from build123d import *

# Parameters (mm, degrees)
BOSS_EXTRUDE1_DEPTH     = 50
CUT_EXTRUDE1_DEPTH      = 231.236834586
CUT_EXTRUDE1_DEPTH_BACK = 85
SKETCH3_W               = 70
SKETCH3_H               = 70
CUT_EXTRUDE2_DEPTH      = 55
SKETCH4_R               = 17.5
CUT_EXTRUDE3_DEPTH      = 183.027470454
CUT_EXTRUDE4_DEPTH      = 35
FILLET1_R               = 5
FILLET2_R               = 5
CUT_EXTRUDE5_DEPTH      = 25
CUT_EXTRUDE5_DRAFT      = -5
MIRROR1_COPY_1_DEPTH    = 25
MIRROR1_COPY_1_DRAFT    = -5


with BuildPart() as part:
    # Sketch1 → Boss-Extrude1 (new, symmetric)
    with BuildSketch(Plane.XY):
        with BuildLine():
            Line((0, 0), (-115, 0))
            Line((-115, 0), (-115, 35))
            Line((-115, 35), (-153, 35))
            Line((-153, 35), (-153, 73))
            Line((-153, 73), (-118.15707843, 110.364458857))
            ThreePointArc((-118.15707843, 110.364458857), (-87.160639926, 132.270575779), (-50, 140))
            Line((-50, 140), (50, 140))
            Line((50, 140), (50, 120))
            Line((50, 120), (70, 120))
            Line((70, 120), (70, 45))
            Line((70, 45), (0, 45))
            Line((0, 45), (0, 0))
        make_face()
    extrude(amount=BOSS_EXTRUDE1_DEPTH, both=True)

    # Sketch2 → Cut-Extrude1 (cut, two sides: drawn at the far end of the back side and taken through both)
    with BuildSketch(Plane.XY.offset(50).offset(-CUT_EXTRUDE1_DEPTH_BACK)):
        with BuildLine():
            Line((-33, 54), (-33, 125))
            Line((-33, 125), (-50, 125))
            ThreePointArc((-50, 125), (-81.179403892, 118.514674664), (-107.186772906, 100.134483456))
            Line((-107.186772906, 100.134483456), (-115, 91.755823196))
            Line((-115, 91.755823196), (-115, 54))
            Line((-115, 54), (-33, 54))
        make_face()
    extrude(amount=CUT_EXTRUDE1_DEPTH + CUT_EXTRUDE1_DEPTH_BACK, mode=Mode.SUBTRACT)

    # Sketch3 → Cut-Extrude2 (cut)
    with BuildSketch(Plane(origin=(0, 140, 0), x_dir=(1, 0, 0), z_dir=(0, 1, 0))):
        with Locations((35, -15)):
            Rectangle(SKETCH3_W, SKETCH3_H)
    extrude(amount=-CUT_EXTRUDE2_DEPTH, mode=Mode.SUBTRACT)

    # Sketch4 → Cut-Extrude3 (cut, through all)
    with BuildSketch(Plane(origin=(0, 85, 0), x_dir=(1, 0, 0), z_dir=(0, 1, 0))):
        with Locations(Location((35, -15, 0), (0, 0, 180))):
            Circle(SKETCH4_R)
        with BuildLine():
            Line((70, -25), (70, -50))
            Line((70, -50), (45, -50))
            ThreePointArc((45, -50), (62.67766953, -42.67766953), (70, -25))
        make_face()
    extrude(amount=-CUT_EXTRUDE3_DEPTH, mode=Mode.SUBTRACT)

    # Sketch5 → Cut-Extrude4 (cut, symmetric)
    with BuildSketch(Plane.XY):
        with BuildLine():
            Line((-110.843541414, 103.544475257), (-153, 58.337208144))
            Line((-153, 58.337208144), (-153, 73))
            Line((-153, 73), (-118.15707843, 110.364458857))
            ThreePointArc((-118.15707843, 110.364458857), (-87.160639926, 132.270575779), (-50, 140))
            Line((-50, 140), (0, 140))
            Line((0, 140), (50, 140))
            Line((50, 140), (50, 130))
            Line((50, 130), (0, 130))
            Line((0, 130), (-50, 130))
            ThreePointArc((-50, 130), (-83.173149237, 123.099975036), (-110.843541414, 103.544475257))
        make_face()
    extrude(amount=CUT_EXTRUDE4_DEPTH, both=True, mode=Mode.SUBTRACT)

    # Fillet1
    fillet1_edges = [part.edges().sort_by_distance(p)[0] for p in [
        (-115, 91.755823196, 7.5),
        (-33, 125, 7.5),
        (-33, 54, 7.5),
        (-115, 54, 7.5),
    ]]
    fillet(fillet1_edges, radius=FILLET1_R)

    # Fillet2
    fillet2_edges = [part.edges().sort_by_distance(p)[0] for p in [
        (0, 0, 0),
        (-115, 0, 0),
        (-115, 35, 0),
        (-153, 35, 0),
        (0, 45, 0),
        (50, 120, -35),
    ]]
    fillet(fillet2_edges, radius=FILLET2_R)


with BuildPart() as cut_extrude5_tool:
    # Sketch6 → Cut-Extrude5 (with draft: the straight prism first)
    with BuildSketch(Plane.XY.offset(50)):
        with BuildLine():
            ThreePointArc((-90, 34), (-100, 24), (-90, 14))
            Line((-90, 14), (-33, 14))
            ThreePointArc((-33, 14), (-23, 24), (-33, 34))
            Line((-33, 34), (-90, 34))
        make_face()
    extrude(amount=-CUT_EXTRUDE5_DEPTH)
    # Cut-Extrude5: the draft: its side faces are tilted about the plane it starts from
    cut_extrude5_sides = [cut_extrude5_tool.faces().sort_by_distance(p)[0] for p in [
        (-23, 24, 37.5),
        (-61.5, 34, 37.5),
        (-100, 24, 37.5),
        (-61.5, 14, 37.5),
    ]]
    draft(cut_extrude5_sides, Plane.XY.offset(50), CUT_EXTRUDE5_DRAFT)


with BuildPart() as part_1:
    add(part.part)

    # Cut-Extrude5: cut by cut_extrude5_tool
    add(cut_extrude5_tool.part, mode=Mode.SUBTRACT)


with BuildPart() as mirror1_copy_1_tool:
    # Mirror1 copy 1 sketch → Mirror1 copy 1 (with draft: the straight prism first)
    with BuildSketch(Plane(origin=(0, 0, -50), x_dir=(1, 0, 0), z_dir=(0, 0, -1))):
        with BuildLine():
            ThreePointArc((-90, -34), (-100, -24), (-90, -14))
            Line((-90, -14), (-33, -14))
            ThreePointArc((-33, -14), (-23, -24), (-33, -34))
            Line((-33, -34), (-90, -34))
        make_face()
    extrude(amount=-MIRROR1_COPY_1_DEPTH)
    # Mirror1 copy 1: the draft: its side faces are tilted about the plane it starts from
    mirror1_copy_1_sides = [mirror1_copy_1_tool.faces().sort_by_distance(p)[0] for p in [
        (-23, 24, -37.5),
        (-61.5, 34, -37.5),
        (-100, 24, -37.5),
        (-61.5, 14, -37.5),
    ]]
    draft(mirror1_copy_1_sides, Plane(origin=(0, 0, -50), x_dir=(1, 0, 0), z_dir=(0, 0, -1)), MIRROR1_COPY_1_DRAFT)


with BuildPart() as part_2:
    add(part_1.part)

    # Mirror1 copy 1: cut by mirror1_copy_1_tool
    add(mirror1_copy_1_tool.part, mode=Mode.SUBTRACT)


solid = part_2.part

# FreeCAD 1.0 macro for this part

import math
import FreeCAD as App
import Part
import Sketcher
from FreeCAD import Vector
Q = App.Units.Quantity


def edges_at(feature, points):
    """Names of the edges that pass closest to the given points."""
    edges = feature.Shape.Edges
    near = lambda p: min(range(len(edges)), key=lambda i: edges[i].distToShape(Part.Vertex(*p))[0])
    return sorted({f"Edge{near(p) + 1}" for p in points})


def faces_at(feature, points):
    """Names of the faces that lie closest to the given points."""
    faces = feature.Shape.Faces
    near = lambda p: min(range(len(faces)), key=lambda i: faces[i].distToShape(Part.Vertex(*p))[0])
    return sorted({f"Face{near(p) + 1}" for p in points})

doc = App.newDocument("Part")
body = doc.addObject("PartDesign::Body", "Body")

sketch1 = body.newObject("Sketcher::SketchObject", "Sketch")
sketch1.AttachmentSupport = (doc.getObject("XY_Plane"), [""])
sketch1.MapMode = "FlatFace"
sketch1.addGeometry(Part.LineSegment(Vector(-115, 0, 0), Vector(0, 0, 0)), False)
sketch1.addGeometry(Part.LineSegment(Vector(0, 0, 0), Vector(0, 45, 0)), False)
sketch1.addGeometry(Part.LineSegment(Vector(0, 45, 0), Vector(70, 45, 0)), False)
sketch1.addGeometry(Part.LineSegment(Vector(70, 45, 0), Vector(70, 120, 0)), False)
sketch1.addGeometry(Part.LineSegment(Vector(70, 120, 0), Vector(50, 120, 0)), False)
sketch1.addGeometry(Part.LineSegment(Vector(50, 120, 0), Vector(50, 140, 0)), False)
sketch1.addGeometry(Part.LineSegment(Vector(50, 140, 0), Vector(-50, 140, 0)), False)
sketch1.addGeometry(Part.ArcOfCircle(Part.Circle(Vector(-50, 47, 0), Vector(0, 0, 1), 93), math.radians(90), math.radians(137)), False)
sketch1.addGeometry(Part.LineSegment(Vector(-118, 110, 0), Vector(-153, 73, 0)), False)
sketch1.addGeometry(Part.LineSegment(Vector(-153, 73, 0), Vector(-153, 35, 0)), False)
sketch1.addGeometry(Part.LineSegment(Vector(-153, 35, 0), Vector(-115, 35, 0)), False)
sketch1.addGeometry(Part.LineSegment(Vector(-115, 35, 0), Vector(-115, 0, 0)), False)
sketch1.addConstraint(Sketcher.Constraint("Coincident", 0, 2, 1, 1))
sketch1.addConstraint(Sketcher.Constraint("Coincident", 1, 2, 2, 1))
sketch1.addConstraint(Sketcher.Constraint("Coincident", 2, 2, 3, 1))
sketch1.addConstraint(Sketcher.Constraint("Coincident", 3, 2, 4, 1))
sketch1.addConstraint(Sketcher.Constraint("Coincident", 4, 2, 5, 1))
sketch1.addConstraint(Sketcher.Constraint("Coincident", 5, 2, 6, 1))
sketch1.addConstraint(Sketcher.Constraint("Tangent", 6, 2, 7, 1))
sketch1.addConstraint(Sketcher.Constraint("Tangent", 7, 2, 8, 1))
sketch1.addConstraint(Sketcher.Constraint("Coincident", 8, 2, 9, 1))
sketch1.addConstraint(Sketcher.Constraint("Coincident", 9, 2, 10, 1))
sketch1.addConstraint(Sketcher.Constraint("Coincident", 10, 2, 11, 1))
sketch1.addConstraint(Sketcher.Constraint("Coincident", 11, 2, 0, 1))
sketch1.addConstraint(Sketcher.Constraint("Horizontal", 0))
sketch1.addConstraint(Sketcher.Constraint("Vertical", 1))
sketch1.addConstraint(Sketcher.Constraint("Horizontal", 2))
sketch1.addConstraint(Sketcher.Constraint("Vertical", 3))
sketch1.addConstraint(Sketcher.Constraint("Horizontal", 4))
sketch1.addConstraint(Sketcher.Constraint("Vertical", 5))
sketch1.addConstraint(Sketcher.Constraint("Horizontal", 6))
sketch1.addConstraint(Sketcher.Constraint("Vertical", 9))
sketch1.addConstraint(Sketcher.Constraint("Horizontal", 10))
sketch1.addConstraint(Sketcher.Constraint("Vertical", 11))
sketch1.addConstraint(Sketcher.Constraint("Coincident", 0, 2, -1, 1))
sketch1.addConstraint(Sketcher.Constraint("Equal", 4, 5))
sketch1.addConstraint(Sketcher.Constraint("Equal", 10, 9))
sketch1.addConstraint(Sketcher.Constraint("DistanceX", 0, 1, 0, 2, 115.0))
sketch1.addConstraint(Sketcher.Constraint("DistanceX", 2, 1, 2, 2, 70.0))
sketch1.addConstraint(Sketcher.Constraint("DistanceX", 4, 2, 4, 1, 20.0))
sketch1.addConstraint(Sketcher.Constraint("DistanceX", 6, 2, 6, 1, 100.0))
sketch1.addConstraint(Sketcher.Constraint("DistanceX", 10, 1, 10, 2, 38.0))
sketch1.addConstraint(Sketcher.Constraint("DistanceY", 1, 1, 1, 2, 45.0))
sketch1.addConstraint(Sketcher.Constraint("DistanceY", 3, 1, 3, 2, 75.0))
sketch1.addConstraint(Sketcher.Constraint("DistanceY", 11, 2, 11, 1, 35.0))
sketch1.addConstraint(Sketcher.Constraint("Angle", 8, Q("-133 deg")))
pad1 = body.newObject("PartDesign::Pad", "Pad")
pad1.Profile = sketch1
pad1.Length = 100
pad1.Midplane = True

sketch2 = body.newObject("Sketcher::SketchObject", "Sketch001")
sketch2.AttachmentSupport = (doc.getObject("XY_Plane"), [""])
sketch2.MapMode = "FlatFace"
sketch2.AttachmentOffset = App.Placement(Vector(0, 0, 50), App.Rotation())
sketch2.addGeometry(Part.LineSegment(Vector(-33, 54, 0), Vector(-33, 125, 0)), False)
sketch2.addGeometry(Part.LineSegment(Vector(-33, 125, 0), Vector(-50, 125, 0)), False)
sketch2.addGeometry(Part.ArcOfCircle(Part.Circle(Vector(-50, 47, 0), Vector(0, 0, 1), 78), math.radians(90), math.radians(137)), False)
sketch2.addGeometry(Part.LineSegment(Vector(-107, 100, 0), Vector(-115, 92, 0)), False)
sketch2.addGeometry(Part.LineSegment(Vector(-115, 92, 0), Vector(-115, 54, 0)), False)
sketch2.addGeometry(Part.LineSegment(Vector(-115, 54, 0), Vector(-33, 54, 0)), False)
sketch2.addConstraint(Sketcher.Constraint("Coincident", 0, 2, 1, 1))
sketch2.addConstraint(Sketcher.Constraint("Tangent", 1, 2, 2, 1))
sketch2.addConstraint(Sketcher.Constraint("Tangent", 2, 2, 3, 1))
sketch2.addConstraint(Sketcher.Constraint("Coincident", 3, 2, 4, 1))
sketch2.addConstraint(Sketcher.Constraint("Coincident", 4, 2, 5, 1))
sketch2.addConstraint(Sketcher.Constraint("Coincident", 5, 2, 0, 1))
sketch2.addConstraint(Sketcher.Constraint("Vertical", 0))
sketch2.addConstraint(Sketcher.Constraint("Horizontal", 1))
sketch2.addConstraint(Sketcher.Constraint("Vertical", 4))
sketch2.addConstraint(Sketcher.Constraint("Horizontal", 5))
sketch2.addConstraint(Sketcher.Constraint("DistanceX", 1, 2, 1, 1, 17.0))
sketch2.addConstraint(Sketcher.Constraint("DistanceX", 5, 1, 5, 2, 82.0))
sketch2.addConstraint(Sketcher.Constraint("DistanceY", 0, 1, 0, 2, 71.0))
sketch2.addConstraint(Sketcher.Constraint("Angle", 3, Q("-133 deg")))
sketch2.addConstraint(Sketcher.Constraint("DistanceX", 2, 3, -1, 1, 50.0))
sketch2.addConstraint(Sketcher.Constraint("DistanceY", -1, 1, 0, 2, 125.0))
sketch2.addConstraint(Sketcher.Constraint("Radius", 2, 78.193045))
pocket1 = body.newObject("PartDesign::Pocket", "Pocket")
pocket1.Profile = sketch2
pocket1.Type = "TwoLengths"
pocket1.Length = 231.236835
pocket1.Length2 = 85
pocket1.Reversed = True

sketch3 = body.newObject("Sketcher::SketchObject", "Sketch002")
sketch3.AttachmentSupport = (doc.getObject("XZ_Plane"), [""])
sketch3.MapMode = "FlatFace"
sketch3.AttachmentOffset = App.Placement(Vector(0, 0, -140), App.Rotation())
sketch3.addGeometry(Part.LineSegment(Vector(0, -20, 0), Vector(0, 50, 0)), False)
sketch3.addGeometry(Part.LineSegment(Vector(0, 50, 0), Vector(70, 50, 0)), False)
sketch3.addGeometry(Part.LineSegment(Vector(70, 50, 0), Vector(70, -20, 0)), False)
sketch3.addGeometry(Part.LineSegment(Vector(70, -20, 0), Vector(0, -20, 0)), False)
sketch3.addConstraint(Sketcher.Constraint("Coincident", 0, 2, 1, 1))
sketch3.addConstraint(Sketcher.Constraint("Coincident", 1, 2, 2, 1))
sketch3.addConstraint(Sketcher.Constraint("Coincident", 2, 2, 3, 1))
sketch3.addConstraint(Sketcher.Constraint("Coincident", 3, 2, 0, 1))
sketch3.addConstraint(Sketcher.Constraint("Vertical", 0))
sketch3.addConstraint(Sketcher.Constraint("Horizontal", 1))
sketch3.addConstraint(Sketcher.Constraint("Vertical", 2))
sketch3.addConstraint(Sketcher.Constraint("Horizontal", 3))
sketch3.addConstraint(Sketcher.Constraint("PointOnObject", 0, 2, -2))
sketch3.addConstraint(Sketcher.Constraint("Equal", 3, 0))
sketch3.addConstraint(Sketcher.Constraint("DistanceX", 1, 1, 1, 2, 70.0))
sketch3.addConstraint(Sketcher.Constraint("DistanceY", -1, 1, 0, 2, 50.0))
pocket2 = body.newObject("PartDesign::Pocket", "Pocket001")
pocket2.Profile = sketch3
pocket2.Length = 55
pocket2.Reversed = True

sketch4 = body.newObject("Sketcher::SketchObject", "Sketch003")
sketch4.AttachmentSupport = (doc.getObject("XZ_Plane"), [""])
sketch4.MapMode = "FlatFace"
sketch4.AttachmentOffset = App.Placement(Vector(0, 0, -85), App.Rotation())
sketch4.addGeometry(Part.Circle(Vector(35, 15, 0), Vector(0, 0, 1), 18), False)
sketch4.addGeometry(Part.LineSegment(Vector(70, 50, 0), Vector(70, 25, 0)), False)
sketch4.addGeometry(Part.ArcOfCircle(Part.Circle(Vector(45, 25, 0), Vector(0, 0, 1), 25), math.radians(0), math.radians(90)), False)
sketch4.addGeometry(Part.LineSegment(Vector(45, 50, 0), Vector(70, 50, 0)), False)
sketch4.addConstraint(Sketcher.Constraint("Tangent", 1, 2, 2, 1))
sketch4.addConstraint(Sketcher.Constraint("Tangent", 2, 2, 3, 1))
sketch4.addConstraint(Sketcher.Constraint("Coincident", 3, 2, 1, 1))
sketch4.addConstraint(Sketcher.Constraint("Vertical", 1))
sketch4.addConstraint(Sketcher.Constraint("Horizontal", 3))
sketch4.addConstraint(Sketcher.Constraint("Diameter", 0, 35.0))
sketch4.addConstraint(Sketcher.Constraint("Radius", 2, 25.0))
sketch4.addConstraint(Sketcher.Constraint("DistanceX", -1, 1, 0, 3, 35.0))
sketch4.addConstraint(Sketcher.Constraint("DistanceY", -1, 1, 0, 3, 15.0))
sketch4.addConstraint(Sketcher.Constraint("DistanceX", -1, 1, 2, 3, 45.0))
sketch4.addConstraint(Sketcher.Constraint("DistanceY", -1, 1, 2, 3, 25.0))
pocket3 = body.newObject("PartDesign::Pocket", "Pocket002")
pocket3.Profile = sketch4
pocket3.Type = "ThroughAll"
pocket3.Reversed = True

sketch5 = body.newObject("Sketcher::SketchObject", "Sketch004")
sketch5.AttachmentSupport = (doc.getObject("XY_Plane"), [""])
sketch5.MapMode = "FlatFace"
sketch5.addGeometry(Part.LineSegment(Vector(-153, 58, 0), Vector(-111, 104, 0)), False)
sketch5.addGeometry(Part.ArcOfCircle(Part.Circle(Vector(-50, 47, 0), Vector(0, 0, 1), 83), math.radians(90), math.radians(137)), False)
sketch5.addGeometry(Part.LineSegment(Vector(-50, 130, 0), Vector(50, 130, 0)), False)
sketch5.addGeometry(Part.LineSegment(Vector(50, 130, 0), Vector(50, 140, 0)), False)
sketch5.addGeometry(Part.LineSegment(Vector(50, 140, 0), Vector(-50, 140, 0)), False)
sketch5.addGeometry(Part.ArcOfCircle(Part.Circle(Vector(-50, 47, 0), Vector(0, 0, 1), 93), math.radians(90), math.radians(137)), False)
sketch5.addGeometry(Part.LineSegment(Vector(-118, 110, 0), Vector(-153, 73, 0)), False)
sketch5.addGeometry(Part.LineSegment(Vector(-153, 73, 0), Vector(-153, 58, 0)), False)
sketch5.addConstraint(Sketcher.Constraint("Tangent", 0, 2, 1, 2))
sketch5.addConstraint(Sketcher.Constraint("Tangent", 1, 1, 2, 1))
sketch5.addConstraint(Sketcher.Constraint("Coincident", 2, 2, 3, 1))
sketch5.addConstraint(Sketcher.Constraint("Coincident", 3, 2, 4, 1))
sketch5.addConstraint(Sketcher.Constraint("Tangent", 4, 2, 5, 1))
sketch5.addConstraint(Sketcher.Constraint("Tangent", 5, 2, 6, 1))
sketch5.addConstraint(Sketcher.Constraint("Coincident", 6, 2, 7, 1))
sketch5.addConstraint(Sketcher.Constraint("Coincident", 7, 2, 0, 1))
sketch5.addConstraint(Sketcher.Constraint("Horizontal", 2))
sketch5.addConstraint(Sketcher.Constraint("Vertical", 3))
sketch5.addConstraint(Sketcher.Constraint("Horizontal", 4))
sketch5.addConstraint(Sketcher.Constraint("Vertical", 7))
sketch5.addConstraint(Sketcher.Constraint("Coincident", 5, 3, 1, 3))
sketch5.addConstraint(Sketcher.Constraint("Parallel", 0, 6))
sketch5.addConstraint(Sketcher.Constraint("DistanceX", 2, 1, 2, 2, 100.0))
sketch5.addConstraint(Sketcher.Constraint("DistanceY", 3, 1, 3, 2, 10.0))
sketch5.addConstraint(Sketcher.Constraint("Angle", 0, Q("47 deg")))
sketch5.addConstraint(Sketcher.Constraint("DistanceX", 1, 3, -1, 1, 50.0))
sketch5.addConstraint(Sketcher.Constraint("DistanceY", -1, 1, 1, 1, 130.0))
sketch5.addConstraint(Sketcher.Constraint("DistanceX", 6, 2, -1, 1, 153.0))
sketch5.addConstraint(Sketcher.Constraint("DistanceY", -1, 1, 6, 2, 73.0))
pocket4 = body.newObject("PartDesign::Pocket", "Pocket003")
pocket4.Profile = sketch5
pocket4.Length = 70
pocket4.Midplane = True
doc.recompute()

fillet = body.newObject("PartDesign::Fillet", "Fillet")
fillet.Base = (pocket4, edges_at(pocket4, [
    (-115, 91.756, 7.5),
    (-33, 125, 7.5),
    (-33, 54, 7.5),
    (-115, 54, 7.5),
]))
fillet.Radius = 5
doc.recompute()

fillet2 = body.newObject("PartDesign::Fillet", "Fillet001")
fillet2.Base = (fillet, edges_at(fillet, [
    (0, 0, 0),
    (-115, 0, 0),
    (-115, 35, 0),
    (-153, 35, 0),
    (0, 45, 0),
    (50, 120, -35),
]))
fillet2.Radius = 5
body2 = doc.addObject("PartDesign::Body", "Body001")

sketch6 = body2.newObject("Sketcher::SketchObject", "Sketch005")
sketch6.AttachmentSupport = (doc.getObject("XY_Plane001"), [""])
sketch6.MapMode = "FlatFace"
sketch6.AttachmentOffset = App.Placement(Vector(0, 0, 50), App.Rotation())
sketch6.addGeometry(Part.ArcOfCircle(Part.Circle(Vector(-90, 24, 0), Vector(0, 0, 1), 10), math.radians(90), math.radians(270)), False)
sketch6.addGeometry(Part.LineSegment(Vector(-90, 14, 0), Vector(-33, 14, 0)), False)
sketch6.addGeometry(Part.ArcOfCircle(Part.Circle(Vector(-33, 24, 0), Vector(0, 0, 1), 10), math.radians(-90), math.radians(90)), False)
sketch6.addGeometry(Part.LineSegment(Vector(-33, 34, 0), Vector(-90, 34, 0)), False)
sketch6.addConstraint(Sketcher.Constraint("Tangent", 0, 2, 1, 1))
sketch6.addConstraint(Sketcher.Constraint("Tangent", 1, 2, 2, 1))
sketch6.addConstraint(Sketcher.Constraint("Tangent", 2, 2, 3, 1))
sketch6.addConstraint(Sketcher.Constraint("Tangent", 3, 2, 0, 1))
sketch6.addConstraint(Sketcher.Constraint("Horizontal", 1))
sketch6.addConstraint(Sketcher.Constraint("Horizontal", 3))
sketch6.addConstraint(Sketcher.Constraint("Radius", 0, 10.0))
sketch6.addConstraint(Sketcher.Constraint("DistanceX", 1, 1, 1, 2, 57.0))
sketch6.addConstraint(Sketcher.Constraint("DistanceX", 0, 3, -1, 1, 90.0))
sketch6.addConstraint(Sketcher.Constraint("DistanceY", -1, 1, 0, 3, 24.0))
pad2 = body2.newObject("PartDesign::Pad", "Pad001")
pad2.Profile = sketch6
pad2.Length = 25
pad2.Reversed = True
doc.recompute()

datumplane = body2.newObject("PartDesign::Plane", "DatumPlane")
datumplane.AttachmentSupport = (doc.getObject("XY_Plane001"), [""])
datumplane.MapMode = "FlatFace"
datumplane.AttachmentOffset = App.Placement(Vector(0, 0, 50), App.Rotation())
draft = body2.newObject("PartDesign::Draft", "Draft")
draft.Base = (pad2, faces_at(pad2, [
    (-23, 24, 37.5),
    (-61.5, 34, 37.5),
    (-100, 24, 37.5),
    (-61.5, 14, 37.5),
]))
draft.NeutralPlane = (datumplane, [""])
draft.Angle = 5
draft.Reversed = True
doc.recompute()

boolean = body.newObject("PartDesign::Boolean", "Boolean")
boolean.Type = "Cut"
boolean.addObjects([body2])
body3 = doc.addObject("PartDesign::Body", "Body002")

sketch7 = body3.newObject("Sketcher::SketchObject", "Sketch006")
sketch7.AttachmentSupport = (doc.getObject("XY_Plane002"), [""])
sketch7.MapMode = "FlatFace"
sketch7.AttachmentOffset = App.Placement(Vector(0, 0, -50), App.Rotation())
sketch7.addGeometry(Part.ArcOfCircle(Part.Circle(Vector(-90, 24, 0), Vector(0, 0, 1), 10), math.radians(90), math.radians(270)), False)
sketch7.addGeometry(Part.LineSegment(Vector(-90, 34, 0), Vector(-33, 34, 0)), False)
sketch7.addGeometry(Part.ArcOfCircle(Part.Circle(Vector(-33, 24, 0), Vector(0, 0, 1), 10), math.radians(-90), math.radians(90)), False)
sketch7.addGeometry(Part.LineSegment(Vector(-33, 14, 0), Vector(-90, 14, 0)), False)
sketch7.addConstraint(Sketcher.Constraint("Tangent", 0, 1, 1, 1))
sketch7.addConstraint(Sketcher.Constraint("Tangent", 1, 2, 2, 2))
sketch7.addConstraint(Sketcher.Constraint("Tangent", 2, 1, 3, 1))
sketch7.addConstraint(Sketcher.Constraint("Tangent", 3, 2, 0, 2))
sketch7.addConstraint(Sketcher.Constraint("Horizontal", 1))
sketch7.addConstraint(Sketcher.Constraint("Horizontal", 3))
sketch7.addConstraint(Sketcher.Constraint("Radius", 0, 10.0))
sketch7.addConstraint(Sketcher.Constraint("DistanceX", 1, 1, 1, 2, 57.0))
sketch7.addConstraint(Sketcher.Constraint("DistanceX", 0, 3, -1, 1, 90.0))
sketch7.addConstraint(Sketcher.Constraint("DistanceY", -1, 1, 0, 3, 24.0))
pad3 = body3.newObject("PartDesign::Pad", "Pad002")
pad3.Profile = sketch7
pad3.Length = 25
doc.recompute()

datumplane2 = body3.newObject("PartDesign::Plane", "DatumPlane001")
datumplane2.AttachmentSupport = (doc.getObject("XY_Plane002"), [""])
datumplane2.MapMode = "FlatFace"
datumplane2.AttachmentOffset = App.Placement(Vector(0, 0, -50), App.Rotation())
draft2 = body3.newObject("PartDesign::Draft", "Draft001")
draft2.Base = (pad3, faces_at(pad3, [
    (-23, 24, -37.5),
    (-61.5, 34, -37.5),
    (-100, 24, -37.5),
    (-61.5, 14, -37.5),
]))
draft2.NeutralPlane = (datumplane2, [""])
draft2.Angle = 5
draft2.Reversed = False
doc.recompute()

boolean2 = body.newObject("PartDesign::Boolean", "Boolean001")
boolean2.Type = "Cut"
boolean2.addObjects([body3])

doc.recompute()
